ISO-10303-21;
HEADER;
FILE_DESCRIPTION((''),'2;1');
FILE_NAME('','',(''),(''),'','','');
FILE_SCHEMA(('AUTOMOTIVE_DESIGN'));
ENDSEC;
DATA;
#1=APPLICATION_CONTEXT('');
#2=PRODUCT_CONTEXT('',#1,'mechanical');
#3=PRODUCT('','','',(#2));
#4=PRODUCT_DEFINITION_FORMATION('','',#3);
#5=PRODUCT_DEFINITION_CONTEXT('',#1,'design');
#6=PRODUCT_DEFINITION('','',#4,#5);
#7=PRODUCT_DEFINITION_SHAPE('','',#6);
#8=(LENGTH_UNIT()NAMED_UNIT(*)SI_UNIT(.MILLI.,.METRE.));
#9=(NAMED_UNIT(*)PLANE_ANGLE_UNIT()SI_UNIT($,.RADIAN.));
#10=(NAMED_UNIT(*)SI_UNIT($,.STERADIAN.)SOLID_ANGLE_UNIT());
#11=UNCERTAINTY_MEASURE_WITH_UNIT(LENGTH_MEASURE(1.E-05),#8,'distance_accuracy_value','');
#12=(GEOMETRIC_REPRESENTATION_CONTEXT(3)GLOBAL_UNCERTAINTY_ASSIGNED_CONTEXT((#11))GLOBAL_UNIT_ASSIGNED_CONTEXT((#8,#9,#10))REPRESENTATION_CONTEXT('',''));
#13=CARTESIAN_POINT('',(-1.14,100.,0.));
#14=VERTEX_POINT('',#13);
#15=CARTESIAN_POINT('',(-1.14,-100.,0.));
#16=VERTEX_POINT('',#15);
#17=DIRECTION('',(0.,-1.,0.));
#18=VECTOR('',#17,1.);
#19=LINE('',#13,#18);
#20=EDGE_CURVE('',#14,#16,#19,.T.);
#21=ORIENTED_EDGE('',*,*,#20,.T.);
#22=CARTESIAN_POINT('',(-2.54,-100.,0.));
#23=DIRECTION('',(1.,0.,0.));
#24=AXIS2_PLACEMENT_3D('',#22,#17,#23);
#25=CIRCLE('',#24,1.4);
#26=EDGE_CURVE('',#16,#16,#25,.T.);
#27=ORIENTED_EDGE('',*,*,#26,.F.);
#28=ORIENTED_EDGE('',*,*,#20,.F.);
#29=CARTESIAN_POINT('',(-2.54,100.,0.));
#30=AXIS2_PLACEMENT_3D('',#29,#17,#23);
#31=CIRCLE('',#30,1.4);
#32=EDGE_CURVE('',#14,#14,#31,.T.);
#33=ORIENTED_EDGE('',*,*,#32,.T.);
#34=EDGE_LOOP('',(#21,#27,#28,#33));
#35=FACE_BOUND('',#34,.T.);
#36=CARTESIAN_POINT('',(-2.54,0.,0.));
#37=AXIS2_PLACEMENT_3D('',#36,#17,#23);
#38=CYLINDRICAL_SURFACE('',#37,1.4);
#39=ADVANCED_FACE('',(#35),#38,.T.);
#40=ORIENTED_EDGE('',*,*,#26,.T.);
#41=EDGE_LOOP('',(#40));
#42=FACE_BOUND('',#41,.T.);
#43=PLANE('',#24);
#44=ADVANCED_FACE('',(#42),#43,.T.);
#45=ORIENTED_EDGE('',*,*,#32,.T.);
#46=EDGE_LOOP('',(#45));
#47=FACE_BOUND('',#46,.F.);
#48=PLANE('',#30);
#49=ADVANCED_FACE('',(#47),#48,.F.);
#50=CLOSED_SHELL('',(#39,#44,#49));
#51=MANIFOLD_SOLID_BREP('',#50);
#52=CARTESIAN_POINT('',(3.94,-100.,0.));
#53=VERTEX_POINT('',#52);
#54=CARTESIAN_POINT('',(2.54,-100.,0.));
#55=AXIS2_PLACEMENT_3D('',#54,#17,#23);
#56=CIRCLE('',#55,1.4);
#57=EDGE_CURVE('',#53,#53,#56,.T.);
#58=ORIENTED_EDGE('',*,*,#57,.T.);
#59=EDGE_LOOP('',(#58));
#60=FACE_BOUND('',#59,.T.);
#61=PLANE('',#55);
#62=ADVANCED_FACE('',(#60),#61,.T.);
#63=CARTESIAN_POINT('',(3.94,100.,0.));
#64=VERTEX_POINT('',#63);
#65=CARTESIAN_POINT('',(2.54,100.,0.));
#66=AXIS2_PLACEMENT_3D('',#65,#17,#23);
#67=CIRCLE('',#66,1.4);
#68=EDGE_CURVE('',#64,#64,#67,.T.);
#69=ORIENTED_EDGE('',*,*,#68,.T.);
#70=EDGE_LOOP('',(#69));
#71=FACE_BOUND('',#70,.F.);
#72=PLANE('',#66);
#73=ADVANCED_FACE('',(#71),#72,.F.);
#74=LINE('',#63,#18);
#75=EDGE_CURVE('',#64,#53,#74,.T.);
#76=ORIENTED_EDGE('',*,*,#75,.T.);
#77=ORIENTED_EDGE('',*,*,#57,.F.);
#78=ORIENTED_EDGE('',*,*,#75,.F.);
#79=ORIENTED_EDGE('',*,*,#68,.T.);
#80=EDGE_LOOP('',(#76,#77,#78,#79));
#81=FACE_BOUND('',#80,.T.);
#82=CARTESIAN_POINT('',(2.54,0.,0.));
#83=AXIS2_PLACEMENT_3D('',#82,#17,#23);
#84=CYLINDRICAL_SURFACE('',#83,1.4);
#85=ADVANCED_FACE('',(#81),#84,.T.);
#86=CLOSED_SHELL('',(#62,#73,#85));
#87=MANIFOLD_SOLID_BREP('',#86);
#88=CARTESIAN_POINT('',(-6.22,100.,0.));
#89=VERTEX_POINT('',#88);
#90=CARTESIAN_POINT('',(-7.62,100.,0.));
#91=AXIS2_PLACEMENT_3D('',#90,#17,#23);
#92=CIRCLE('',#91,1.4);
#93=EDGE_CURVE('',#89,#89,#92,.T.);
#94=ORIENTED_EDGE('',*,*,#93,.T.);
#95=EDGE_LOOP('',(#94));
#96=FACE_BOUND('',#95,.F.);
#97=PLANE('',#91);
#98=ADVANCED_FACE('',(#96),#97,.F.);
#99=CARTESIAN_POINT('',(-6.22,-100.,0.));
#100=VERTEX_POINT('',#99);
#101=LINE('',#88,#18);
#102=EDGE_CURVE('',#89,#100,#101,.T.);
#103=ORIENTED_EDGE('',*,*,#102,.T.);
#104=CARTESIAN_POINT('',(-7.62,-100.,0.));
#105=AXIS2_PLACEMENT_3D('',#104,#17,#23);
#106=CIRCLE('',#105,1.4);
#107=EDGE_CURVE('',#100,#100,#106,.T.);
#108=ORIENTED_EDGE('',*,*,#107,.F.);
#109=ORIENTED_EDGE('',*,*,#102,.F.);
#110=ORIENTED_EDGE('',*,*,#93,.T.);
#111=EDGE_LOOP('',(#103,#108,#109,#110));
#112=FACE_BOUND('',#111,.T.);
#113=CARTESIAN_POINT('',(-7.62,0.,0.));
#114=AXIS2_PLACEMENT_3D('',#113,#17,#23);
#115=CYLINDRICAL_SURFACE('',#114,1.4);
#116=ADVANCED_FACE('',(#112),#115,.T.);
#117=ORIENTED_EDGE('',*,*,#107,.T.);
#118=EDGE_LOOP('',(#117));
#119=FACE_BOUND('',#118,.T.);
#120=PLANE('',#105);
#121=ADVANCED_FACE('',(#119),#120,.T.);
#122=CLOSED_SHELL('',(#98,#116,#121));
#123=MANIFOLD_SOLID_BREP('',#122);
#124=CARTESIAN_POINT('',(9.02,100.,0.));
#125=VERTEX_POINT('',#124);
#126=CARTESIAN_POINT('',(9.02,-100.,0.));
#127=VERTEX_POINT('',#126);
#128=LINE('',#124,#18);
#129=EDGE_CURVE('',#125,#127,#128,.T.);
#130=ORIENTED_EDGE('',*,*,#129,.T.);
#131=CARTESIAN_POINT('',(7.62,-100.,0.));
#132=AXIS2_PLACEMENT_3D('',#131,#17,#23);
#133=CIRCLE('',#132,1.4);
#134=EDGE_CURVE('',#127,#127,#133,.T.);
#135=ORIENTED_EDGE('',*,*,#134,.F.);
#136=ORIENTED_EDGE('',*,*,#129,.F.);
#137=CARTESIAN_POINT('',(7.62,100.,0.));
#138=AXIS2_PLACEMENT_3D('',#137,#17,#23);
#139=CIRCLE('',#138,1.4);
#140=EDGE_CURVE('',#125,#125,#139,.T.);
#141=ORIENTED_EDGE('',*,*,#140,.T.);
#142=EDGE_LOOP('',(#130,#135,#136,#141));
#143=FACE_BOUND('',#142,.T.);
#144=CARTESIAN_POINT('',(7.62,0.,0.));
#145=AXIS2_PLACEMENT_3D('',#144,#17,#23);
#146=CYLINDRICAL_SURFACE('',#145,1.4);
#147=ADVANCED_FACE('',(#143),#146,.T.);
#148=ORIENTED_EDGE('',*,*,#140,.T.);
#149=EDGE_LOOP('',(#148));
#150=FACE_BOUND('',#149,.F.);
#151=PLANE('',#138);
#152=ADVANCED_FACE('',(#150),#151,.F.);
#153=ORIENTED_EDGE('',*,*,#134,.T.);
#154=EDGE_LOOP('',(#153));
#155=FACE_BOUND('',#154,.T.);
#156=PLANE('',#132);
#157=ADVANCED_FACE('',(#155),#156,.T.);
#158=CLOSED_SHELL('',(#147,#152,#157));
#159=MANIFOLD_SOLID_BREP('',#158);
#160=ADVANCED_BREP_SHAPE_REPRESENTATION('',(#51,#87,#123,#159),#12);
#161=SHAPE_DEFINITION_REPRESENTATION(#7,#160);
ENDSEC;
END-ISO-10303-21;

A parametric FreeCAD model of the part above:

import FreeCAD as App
import Part
import Sketcher

V = App.Vector

doc = App.newDocument("Part")
body = doc.addObject("PartDesign::Body", "Body")

# Sketch on XZ plane
sketch1 = doc.addObject("Sketcher::SketchObject", "Sketch")
body.addObject(sketch1)
sketch1.AttachmentSupport = (doc.XZ_Plane, [""])
sketch1.MapMode = "FlatFace"
sketch1.addGeometry(Part.Circle(V(-7.6, 0, 0), V(0, 0, 1), 1.4), False)
sketch1.addConstraint([
    Sketcher.Constraint("PointOnObject", 0, 3, -1),
    Sketcher.Constraint("Diameter", 0, 2.8),
    Sketcher.Constraint("DistanceX", 0, 3, -1, 1, 7.62),
])
pad1 = doc.addObject("PartDesign::Pad", "Pad")
body.addObject(pad1)
pad1.Profile = sketch1
pad1.Length = 200
pad1.Midplane = True
body2 = doc.addObject("PartDesign::Body", "Body001")

# Sketch on XZ plane
sketch2 = doc.addObject("Sketcher::SketchObject", "Sketch001")
body2.addObject(sketch2)
sketch2.AttachmentSupport = (doc.getObject("XZ_Plane001"), [""])
sketch2.MapMode = "FlatFace"
sketch2.addGeometry(Part.Circle(V(-2.5, 0, 0), V(0, 0, 1), 1.4), False)
sketch2.addConstraint([
    Sketcher.Constraint("PointOnObject", 0, 3, -1),
    Sketcher.Constraint("Diameter", 0, 2.8),
    Sketcher.Constraint("DistanceX", 0, 3, -1, 1, 2.54),
])
pad2 = doc.addObject("PartDesign::Pad", "Pad001")
body2.addObject(pad2)
pad2.Profile = sketch2
pad2.Length = 200
pad2.Midplane = True
body3 = doc.addObject("PartDesign::Body", "Body002")

# Sketch on XZ plane
sketch3 = doc.addObject("Sketcher::SketchObject", "Sketch002")
body3.addObject(sketch3)
sketch3.AttachmentSupport = (doc.getObject("XZ_Plane002"), [""])
sketch3.MapMode = "FlatFace"
sketch3.addGeometry(Part.Circle(V(2.5, 0, 0), V(0, 0, 1), 1.4), False)
sketch3.addConstraint([
    Sketcher.Constraint("PointOnObject", 0, 3, -1),
    Sketcher.Constraint("Diameter", 0, 2.8),
    Sketcher.Constraint("DistanceX", -1, 1, 0, 3, 2.54),
])
pad3 = doc.addObject("PartDesign::Pad", "Pad002")
body3.addObject(pad3)
pad3.Profile = sketch3
pad3.Length = 200
pad3.Midplane = True
body4 = doc.addObject("PartDesign::Body", "Body003")

# Sketch on XZ plane
sketch4 = doc.addObject("Sketcher::SketchObject", "Sketch003")
body4.addObject(sketch4)
sketch4.AttachmentSupport = (doc.getObject("XZ_Plane003"), [""])
sketch4.MapMode = "FlatFace"
sketch4.addGeometry(Part.Circle(V(7.6, 0, 0), V(0, 0, 1), 1.4), False)
sketch4.addConstraint([
    Sketcher.Constraint("PointOnObject", 0, 3, -1),
    Sketcher.Constraint("Diameter", 0, 2.8),
    Sketcher.Constraint("DistanceX", -1, 1, 0, 3, 7.62),
])
pad4 = doc.addObject("PartDesign::Pad", "Pad003")
body4.addObject(pad4)
pad4.Profile = sketch4
pad4.Length = 200
pad4.Midplane = True

doc.recompute()
